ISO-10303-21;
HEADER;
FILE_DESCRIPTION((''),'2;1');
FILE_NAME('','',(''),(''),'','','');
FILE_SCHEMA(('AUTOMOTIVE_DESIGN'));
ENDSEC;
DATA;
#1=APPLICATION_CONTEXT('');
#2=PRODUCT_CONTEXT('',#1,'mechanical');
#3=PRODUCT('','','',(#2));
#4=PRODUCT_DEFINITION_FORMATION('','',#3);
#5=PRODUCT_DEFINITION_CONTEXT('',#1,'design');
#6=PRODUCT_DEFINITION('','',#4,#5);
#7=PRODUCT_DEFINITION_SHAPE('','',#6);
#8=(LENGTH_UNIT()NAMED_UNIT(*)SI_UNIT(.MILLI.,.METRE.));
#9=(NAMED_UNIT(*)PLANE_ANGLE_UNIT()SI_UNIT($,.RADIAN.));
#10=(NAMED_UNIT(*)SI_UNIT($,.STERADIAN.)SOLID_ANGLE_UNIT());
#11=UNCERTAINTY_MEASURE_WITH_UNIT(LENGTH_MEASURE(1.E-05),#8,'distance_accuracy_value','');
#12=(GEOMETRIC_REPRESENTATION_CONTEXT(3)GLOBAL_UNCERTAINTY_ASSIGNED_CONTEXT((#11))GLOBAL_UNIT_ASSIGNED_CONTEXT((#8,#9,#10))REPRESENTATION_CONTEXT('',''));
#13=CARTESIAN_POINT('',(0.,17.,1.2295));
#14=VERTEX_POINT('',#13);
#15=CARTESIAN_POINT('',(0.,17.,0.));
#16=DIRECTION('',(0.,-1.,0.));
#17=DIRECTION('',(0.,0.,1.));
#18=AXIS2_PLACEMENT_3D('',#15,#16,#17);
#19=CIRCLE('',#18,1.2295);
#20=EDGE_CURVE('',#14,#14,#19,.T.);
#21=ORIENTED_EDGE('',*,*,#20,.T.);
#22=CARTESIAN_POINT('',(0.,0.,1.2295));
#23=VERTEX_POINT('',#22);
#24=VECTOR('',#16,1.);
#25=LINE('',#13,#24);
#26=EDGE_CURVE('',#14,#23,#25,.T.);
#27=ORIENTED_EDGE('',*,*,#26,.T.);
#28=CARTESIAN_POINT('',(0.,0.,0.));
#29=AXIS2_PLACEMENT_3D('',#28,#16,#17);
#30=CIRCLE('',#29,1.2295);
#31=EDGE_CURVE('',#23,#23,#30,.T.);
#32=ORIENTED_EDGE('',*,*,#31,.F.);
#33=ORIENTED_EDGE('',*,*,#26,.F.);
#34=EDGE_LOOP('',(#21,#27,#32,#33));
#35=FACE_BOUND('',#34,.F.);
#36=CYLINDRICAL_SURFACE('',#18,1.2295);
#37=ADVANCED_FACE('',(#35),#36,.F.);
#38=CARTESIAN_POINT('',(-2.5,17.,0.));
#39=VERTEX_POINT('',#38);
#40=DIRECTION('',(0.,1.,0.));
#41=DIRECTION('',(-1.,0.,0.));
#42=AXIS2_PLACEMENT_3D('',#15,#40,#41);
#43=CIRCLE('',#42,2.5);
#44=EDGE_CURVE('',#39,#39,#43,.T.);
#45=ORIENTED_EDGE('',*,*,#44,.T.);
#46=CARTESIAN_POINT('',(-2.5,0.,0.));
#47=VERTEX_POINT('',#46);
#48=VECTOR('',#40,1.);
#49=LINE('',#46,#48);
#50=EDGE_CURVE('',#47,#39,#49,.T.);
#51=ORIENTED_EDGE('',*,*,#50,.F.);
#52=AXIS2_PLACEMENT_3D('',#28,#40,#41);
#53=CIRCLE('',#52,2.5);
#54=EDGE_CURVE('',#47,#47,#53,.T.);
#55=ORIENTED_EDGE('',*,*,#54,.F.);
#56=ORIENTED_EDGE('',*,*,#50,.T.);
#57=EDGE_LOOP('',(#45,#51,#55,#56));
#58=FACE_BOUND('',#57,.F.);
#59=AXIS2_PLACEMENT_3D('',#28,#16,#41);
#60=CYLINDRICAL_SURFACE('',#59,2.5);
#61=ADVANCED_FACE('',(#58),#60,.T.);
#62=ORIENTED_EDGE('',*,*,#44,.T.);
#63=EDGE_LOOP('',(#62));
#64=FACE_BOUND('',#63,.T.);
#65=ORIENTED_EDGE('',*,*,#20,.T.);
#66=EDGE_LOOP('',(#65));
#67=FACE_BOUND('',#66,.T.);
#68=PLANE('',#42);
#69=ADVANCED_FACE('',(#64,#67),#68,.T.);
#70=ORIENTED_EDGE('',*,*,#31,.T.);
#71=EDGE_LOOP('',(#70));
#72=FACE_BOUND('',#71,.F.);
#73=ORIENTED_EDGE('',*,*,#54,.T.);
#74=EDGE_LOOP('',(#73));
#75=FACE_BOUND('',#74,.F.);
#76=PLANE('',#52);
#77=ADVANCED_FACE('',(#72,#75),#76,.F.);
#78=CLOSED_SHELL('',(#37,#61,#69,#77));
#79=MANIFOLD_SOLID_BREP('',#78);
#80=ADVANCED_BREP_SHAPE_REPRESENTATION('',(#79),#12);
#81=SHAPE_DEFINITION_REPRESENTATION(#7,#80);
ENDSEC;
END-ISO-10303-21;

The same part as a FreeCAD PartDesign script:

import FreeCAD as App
import Part
import Sketcher
from FreeCAD import Vector

doc = App.newDocument("Part")
body = doc.addObject("PartDesign::Body", "Body")

# Sketch on XZ plane
sketch1 = doc.addObject("Sketcher::SketchObject", "Sketch")
body.addObject(sketch1)
sketch1.AttachmentSupport = (doc.XZ_Plane, [""])
sketch1.MapMode = "FlatFace"
sketch1.addGeometry(Part.Circle(Vector(0, 0, 0), Vector(0, 0, 1), 2.5), False)
sketch1.addConstraint(Sketcher.Constraint("Coincident", 0, 3, -1, 1))
sketch1.addConstraint(Sketcher.Constraint("Diameter", 0, 5.0))
pad1 = doc.addObject("PartDesign::Pad", "Pad")
body.addObject(pad1)
pad1.Profile = sketch1
pad1.Length = 17
pad1.Reversed = True

# Sketch on XZ plane
sketch2 = doc.addObject("Sketcher::SketchObject", "Sketch001")
body.addObject(sketch2)
sketch2.AttachmentSupport = (doc.XZ_Plane, [""])
sketch2.MapMode = "FlatFace"
sketch2.AttachmentOffset = App.Placement(Vector(0, 0, -17), App.Rotation())
sketch2.addGeometry(Part.Circle(Vector(0, 0, 0), Vector(0, 0, 1), 1.2295), False)
sketch2.addConstraint(Sketcher.Constraint("Coincident", 0, 3, -1, 1))
sketch2.addConstraint(Sketcher.Constraint("Diameter", 0, 2.459))
doc.recompute()
hole = doc.addObject("PartDesign::Hole", "Hole")
body.addObject(hole)
hole.Profile = sketch2
hole.ThreadType = "None"
hole.Diameter = 2.459
hole.DepthType = "ThroughAll"
hole.Reversed = True

doc.recompute()
